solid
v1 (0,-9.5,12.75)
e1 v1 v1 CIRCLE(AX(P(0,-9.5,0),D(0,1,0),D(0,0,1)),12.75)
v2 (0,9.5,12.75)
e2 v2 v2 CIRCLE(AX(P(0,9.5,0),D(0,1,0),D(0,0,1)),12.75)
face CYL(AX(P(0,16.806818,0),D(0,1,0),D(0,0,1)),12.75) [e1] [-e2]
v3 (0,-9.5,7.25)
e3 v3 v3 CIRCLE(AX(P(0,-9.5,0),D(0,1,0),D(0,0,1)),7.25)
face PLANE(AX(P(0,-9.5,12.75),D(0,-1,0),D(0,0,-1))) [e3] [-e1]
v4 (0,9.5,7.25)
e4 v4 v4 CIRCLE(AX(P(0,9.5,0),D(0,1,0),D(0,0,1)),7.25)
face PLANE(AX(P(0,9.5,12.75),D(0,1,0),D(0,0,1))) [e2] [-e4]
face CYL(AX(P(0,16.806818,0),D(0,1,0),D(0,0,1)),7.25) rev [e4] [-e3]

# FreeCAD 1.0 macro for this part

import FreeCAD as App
import Part
import Sketcher
from FreeCAD import Vector

doc = App.newDocument("Part")
params = doc.addObject("Spreadsheet::Sheet", "Params")
for row, (alias, value) in enumerate([
    ("sketch1_width", "19 mm"),
    ("sketch1_height", "5.5 mm"),
    ("revolution_angle", "360 deg"),
], start=1):
    params.set(f"A{row}", alias)
    params.set(f"B{row}", "=" + value)
    params.setAlias(f"B{row}", alias)

body = doc.addObject("PartDesign::Body", "Body")

sketch1 = body.newObject("Sketcher::SketchObject", "Sketch")
sketch1.AttachmentSupport = (doc.getObject("YZ_Plane"), [""])
sketch1.MapMode = "FlatFace"
sketch1.addGeometry(Part.LineSegment(Vector(10, 13, 0), Vector(-10, 13, 0)), False)
sketch1.addGeometry(Part.LineSegment(Vector(-10, 13, 0), Vector(-10, 7, 0)), False)
sketch1.addGeometry(Part.LineSegment(Vector(-10, 7, 0), Vector(10, 7, 0)), False)
sketch1.addGeometry(Part.LineSegment(Vector(10, 7, 0), Vector(10, 13, 0)), False)
sketch1.addConstraint(Sketcher.Constraint("Coincident", 0, 2, 1, 1))
sketch1.addConstraint(Sketcher.Constraint("Coincident", 1, 2, 2, 1))
sketch1.addConstraint(Sketcher.Constraint("Coincident", 2, 2, 3, 1))
sketch1.addConstraint(Sketcher.Constraint("Coincident", 3, 2, 0, 1))
sketch1.addConstraint(Sketcher.Constraint("Horizontal", 0))
sketch1.addConstraint(Sketcher.Constraint("Vertical", 1))
sketch1.addConstraint(Sketcher.Constraint("Horizontal", 2))
sketch1.addConstraint(Sketcher.Constraint("Vertical", 3))
sketch1.addConstraint(Sketcher.Constraint("DistanceX", 0, 2, 0, 1, 19.0))
sketch1.addConstraint(Sketcher.Constraint("DistanceY", 1, 2, 1, 1, 5.5))
sketch1.addConstraint(Sketcher.Constraint("DistanceX", 0, 2, -1, 1, 9.5))
sketch1.addConstraint(Sketcher.Constraint("DistanceY", -1, 1, 0, 2, 12.75))
sketch1.setExpression("Constraints[8]", "Params.sketch1_width")
sketch1.setExpression("Constraints[9]", "Params.sketch1_height")
revolution = body.newObject("PartDesign::Revolution", "Revolution")
revolution.Profile = sketch1
revolution.ReferenceAxis = (sketch1, ["H_Axis"])
revolution.setExpression("Angle", "Params.revolution_angle")

doc.recompute()
